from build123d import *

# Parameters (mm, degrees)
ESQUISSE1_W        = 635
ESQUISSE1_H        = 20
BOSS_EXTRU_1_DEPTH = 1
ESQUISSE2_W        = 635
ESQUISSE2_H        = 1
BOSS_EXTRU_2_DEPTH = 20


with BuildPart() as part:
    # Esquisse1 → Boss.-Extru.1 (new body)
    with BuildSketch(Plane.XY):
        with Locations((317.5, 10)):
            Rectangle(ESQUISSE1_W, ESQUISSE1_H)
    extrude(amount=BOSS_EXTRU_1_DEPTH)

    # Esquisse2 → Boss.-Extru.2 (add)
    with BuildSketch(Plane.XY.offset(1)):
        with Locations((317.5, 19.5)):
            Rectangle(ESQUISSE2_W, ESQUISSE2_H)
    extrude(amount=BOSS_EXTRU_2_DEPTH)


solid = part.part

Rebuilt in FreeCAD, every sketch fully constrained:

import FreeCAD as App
import Part
import Sketcher
from FreeCAD import Vector

doc = App.newDocument("Part")
body = doc.addObject("PartDesign::Body", "Body")

# Sketch on XY plane
sketch1 = body.newObject("Sketcher::SketchObject", "Sketch")
sketch1.AttachmentSupport = (doc.getObject("XY_Plane"), [""])
sketch1.MapMode = "FlatFace"
sketch1.addGeometry([
    Part.LineSegment(Vector(0, 20, 0), Vector(0, 0, 0)),
    Part.LineSegment(Vector(0, 0, 0), Vector(635, 0, 0)),
    Part.LineSegment(Vector(635, 0, 0), Vector(635, 20, 0)),
    Part.LineSegment(Vector(635, 20, 0), Vector(0, 20, 0)),
], False)
sketch1.addConstraint([
    Sketcher.Constraint("Coincident", 0, 2, 1, 1),
    Sketcher.Constraint("Coincident", 1, 2, 2, 1),
    Sketcher.Constraint("Coincident", 2, 2, 3, 1),
    Sketcher.Constraint("Coincident", 3, 2, 0, 1),
    Sketcher.Constraint("Vertical", 0),
    Sketcher.Constraint("Horizontal", 1),
    Sketcher.Constraint("Vertical", 2),
    Sketcher.Constraint("Horizontal", 3),
    Sketcher.Constraint("Coincident", 0, 2, -1, 1),
    Sketcher.Constraint("DistanceX", 1, 1, 1, 2, 635.0),
    Sketcher.Constraint("DistanceY", 0, 2, 0, 1, 20.0),
])
pad1 = body.newObject("PartDesign::Pad", "Pad")
pad1.Profile = sketch1
pad1.Length = 1

# Sketch on XY plane
sketch2 = body.newObject("Sketcher::SketchObject", "Sketch001")
sketch2.AttachmentSupport = (doc.getObject("XY_Plane"), [""])
sketch2.MapMode = "FlatFace"
sketch2.AttachmentOffset = App.Placement(Vector(0, 0, 1), App.Rotation())
sketch2.addGeometry([
    Part.LineSegment(Vector(0, 20, 0), Vector(0, 19, 0)),
    Part.LineSegment(Vector(0, 19, 0), Vector(635, 19, 0)),
    Part.LineSegment(Vector(635, 19, 0), Vector(635, 20, 0)),
    Part.LineSegment(Vector(635, 20, 0), Vector(0, 20, 0)),
], False)
sketch2.addConstraint([
    Sketcher.Constraint("Coincident", 0, 2, 1, 1),
    Sketcher.Constraint("Coincident", 1, 2, 2, 1),
    Sketcher.Constraint("Coincident", 2, 2, 3, 1),
    Sketcher.Constraint("Coincident", 3, 2, 0, 1),
    Sketcher.Constraint("Vertical", 0),
    Sketcher.Constraint("Horizontal", 1),
    Sketcher.Constraint("Vertical", 2),
    Sketcher.Constraint("Horizontal", 3),
    Sketcher.Constraint("PointOnObject", 0, 2, -2),
    Sketcher.Constraint("DistanceX", 1, 1, 1, 2, 635.0),
    Sketcher.Constraint("DistanceY", 0, 2, 0, 1, 1.0),
    Sketcher.Constraint("DistanceY", -1, 1, 0, 2, 19.0),
])
pad2 = body.newObject("PartDesign::Pad", "Pad001")
pad2.Profile = sketch2
pad2.Length = 20

doc.recompute()
